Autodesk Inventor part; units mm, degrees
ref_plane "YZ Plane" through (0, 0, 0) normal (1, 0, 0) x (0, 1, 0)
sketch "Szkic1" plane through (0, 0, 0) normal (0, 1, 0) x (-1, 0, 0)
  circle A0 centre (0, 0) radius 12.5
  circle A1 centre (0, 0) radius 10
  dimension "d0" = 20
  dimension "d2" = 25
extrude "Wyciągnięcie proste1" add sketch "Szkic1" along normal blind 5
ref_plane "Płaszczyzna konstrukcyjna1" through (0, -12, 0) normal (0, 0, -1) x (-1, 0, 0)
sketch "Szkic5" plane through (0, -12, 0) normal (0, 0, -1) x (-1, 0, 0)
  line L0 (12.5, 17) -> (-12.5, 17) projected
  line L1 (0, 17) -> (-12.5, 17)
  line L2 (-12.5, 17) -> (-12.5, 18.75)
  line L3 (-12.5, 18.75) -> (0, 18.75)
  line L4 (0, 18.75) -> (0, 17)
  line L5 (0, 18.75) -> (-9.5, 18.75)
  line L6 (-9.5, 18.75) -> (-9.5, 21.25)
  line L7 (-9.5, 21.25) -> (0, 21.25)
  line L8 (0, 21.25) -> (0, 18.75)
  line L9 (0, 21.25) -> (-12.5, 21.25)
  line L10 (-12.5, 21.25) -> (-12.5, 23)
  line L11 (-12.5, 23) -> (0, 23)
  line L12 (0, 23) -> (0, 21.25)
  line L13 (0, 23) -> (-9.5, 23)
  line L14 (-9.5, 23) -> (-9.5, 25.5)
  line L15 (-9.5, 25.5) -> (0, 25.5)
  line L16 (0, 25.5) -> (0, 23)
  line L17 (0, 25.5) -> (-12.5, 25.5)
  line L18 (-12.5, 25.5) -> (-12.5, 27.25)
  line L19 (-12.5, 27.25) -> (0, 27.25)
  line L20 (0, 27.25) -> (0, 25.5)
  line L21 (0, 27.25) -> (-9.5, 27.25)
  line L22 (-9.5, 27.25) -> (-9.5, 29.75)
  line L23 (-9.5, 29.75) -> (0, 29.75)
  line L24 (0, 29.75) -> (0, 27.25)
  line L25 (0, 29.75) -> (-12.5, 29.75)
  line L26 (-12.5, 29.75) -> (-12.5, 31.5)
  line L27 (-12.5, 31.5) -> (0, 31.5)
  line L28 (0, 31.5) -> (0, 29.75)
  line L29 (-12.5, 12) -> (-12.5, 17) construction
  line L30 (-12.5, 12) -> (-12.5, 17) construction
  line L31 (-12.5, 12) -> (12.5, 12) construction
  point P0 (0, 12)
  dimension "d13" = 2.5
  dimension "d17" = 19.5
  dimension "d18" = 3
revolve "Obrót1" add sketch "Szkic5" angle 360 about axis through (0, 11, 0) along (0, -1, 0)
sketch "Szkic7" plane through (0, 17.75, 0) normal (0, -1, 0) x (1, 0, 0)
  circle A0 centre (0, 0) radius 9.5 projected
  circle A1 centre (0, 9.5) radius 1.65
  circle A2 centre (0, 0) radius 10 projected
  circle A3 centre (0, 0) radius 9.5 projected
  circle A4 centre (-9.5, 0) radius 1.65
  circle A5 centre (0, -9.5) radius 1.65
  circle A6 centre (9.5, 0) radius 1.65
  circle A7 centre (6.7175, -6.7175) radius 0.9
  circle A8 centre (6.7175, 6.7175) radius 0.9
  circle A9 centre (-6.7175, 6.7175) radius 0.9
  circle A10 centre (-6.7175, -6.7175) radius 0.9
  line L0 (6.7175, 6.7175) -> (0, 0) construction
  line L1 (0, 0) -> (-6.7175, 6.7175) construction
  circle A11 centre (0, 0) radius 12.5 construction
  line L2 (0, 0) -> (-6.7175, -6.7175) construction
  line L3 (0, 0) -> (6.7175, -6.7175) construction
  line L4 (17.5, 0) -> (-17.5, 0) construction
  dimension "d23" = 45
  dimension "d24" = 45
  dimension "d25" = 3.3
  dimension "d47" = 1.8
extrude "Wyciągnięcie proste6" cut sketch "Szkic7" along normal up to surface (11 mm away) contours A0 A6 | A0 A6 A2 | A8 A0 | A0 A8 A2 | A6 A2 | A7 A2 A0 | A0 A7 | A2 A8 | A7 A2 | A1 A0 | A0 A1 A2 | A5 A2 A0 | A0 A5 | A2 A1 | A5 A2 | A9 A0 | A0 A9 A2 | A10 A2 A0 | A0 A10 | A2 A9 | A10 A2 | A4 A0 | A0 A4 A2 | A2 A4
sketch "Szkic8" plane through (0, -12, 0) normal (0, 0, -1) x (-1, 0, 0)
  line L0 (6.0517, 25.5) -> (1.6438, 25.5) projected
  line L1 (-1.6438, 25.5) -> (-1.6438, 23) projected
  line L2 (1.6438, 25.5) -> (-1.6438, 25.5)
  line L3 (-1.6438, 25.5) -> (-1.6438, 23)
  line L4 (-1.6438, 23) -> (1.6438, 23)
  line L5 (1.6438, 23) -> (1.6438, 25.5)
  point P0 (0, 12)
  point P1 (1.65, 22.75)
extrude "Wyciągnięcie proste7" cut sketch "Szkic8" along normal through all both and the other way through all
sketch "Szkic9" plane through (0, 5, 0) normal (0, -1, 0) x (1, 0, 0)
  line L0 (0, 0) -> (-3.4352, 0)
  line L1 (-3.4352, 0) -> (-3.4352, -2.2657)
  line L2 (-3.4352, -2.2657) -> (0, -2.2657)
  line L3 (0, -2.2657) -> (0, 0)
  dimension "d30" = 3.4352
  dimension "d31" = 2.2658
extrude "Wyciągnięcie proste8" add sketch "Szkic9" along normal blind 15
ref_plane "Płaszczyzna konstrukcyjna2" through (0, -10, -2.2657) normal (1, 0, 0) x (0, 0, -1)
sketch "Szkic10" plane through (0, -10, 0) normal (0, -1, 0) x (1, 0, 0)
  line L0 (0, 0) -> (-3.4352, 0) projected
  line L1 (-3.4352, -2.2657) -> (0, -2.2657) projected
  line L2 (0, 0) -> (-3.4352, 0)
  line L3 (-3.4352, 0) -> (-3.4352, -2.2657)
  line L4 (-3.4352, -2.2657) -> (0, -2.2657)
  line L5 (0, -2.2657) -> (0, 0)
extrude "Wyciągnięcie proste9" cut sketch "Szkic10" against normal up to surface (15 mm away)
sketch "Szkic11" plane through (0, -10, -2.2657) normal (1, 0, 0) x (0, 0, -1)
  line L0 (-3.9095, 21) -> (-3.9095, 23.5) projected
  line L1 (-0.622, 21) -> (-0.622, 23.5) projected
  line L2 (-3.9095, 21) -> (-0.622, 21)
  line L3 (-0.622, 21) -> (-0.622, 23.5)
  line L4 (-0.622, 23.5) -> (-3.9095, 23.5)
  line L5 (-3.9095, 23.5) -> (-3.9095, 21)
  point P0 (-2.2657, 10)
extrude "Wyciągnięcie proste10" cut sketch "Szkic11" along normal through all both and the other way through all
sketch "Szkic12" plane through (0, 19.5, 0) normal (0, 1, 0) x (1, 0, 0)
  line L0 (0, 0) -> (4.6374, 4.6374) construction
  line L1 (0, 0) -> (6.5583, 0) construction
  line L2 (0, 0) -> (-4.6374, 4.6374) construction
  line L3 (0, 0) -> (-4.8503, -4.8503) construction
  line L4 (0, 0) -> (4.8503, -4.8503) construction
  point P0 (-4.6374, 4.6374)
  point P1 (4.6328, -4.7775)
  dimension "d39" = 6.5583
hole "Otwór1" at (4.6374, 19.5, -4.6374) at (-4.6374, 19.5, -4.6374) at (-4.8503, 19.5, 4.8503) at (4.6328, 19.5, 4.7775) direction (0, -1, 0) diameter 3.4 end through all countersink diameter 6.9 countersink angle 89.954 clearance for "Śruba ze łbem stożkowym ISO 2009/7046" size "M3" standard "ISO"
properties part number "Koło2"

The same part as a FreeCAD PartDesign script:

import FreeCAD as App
import Part
import Sketcher

V = App.Vector
Q = App.Units.Quantity


def add_polygon(sketch, points):
    """Adds a closed chain of lines whose ends are joined by coincident constraints."""
    first, n = sketch.GeometryCount, len(points)
    for a, b in zip(points, points[1:] + points[:1]):
        sketch.addGeometry(Part.LineSegment(App.Vector(*a, 0), App.Vector(*b, 0)), False)
    for i in range(n):
        sketch.addConstraint(Sketcher.Constraint("Coincident", first + i, 2, first + (i + 1) % n, 1))

doc = App.newDocument("Part")
params = doc.addObject("Spreadsheet::Sheet", "Params")
for row, (alias, value) in enumerate([
    ("sketch1_diameter", "25 mm"),
    ("sketch1_diameter2", "20 mm"),
    ("pad1_length", "5 mm"),
    ("sketch2_width", "3 mm"),
    ("sketch2_height", "2.5 mm"),
    ("sketch2_width2", "12.5 mm"),
    ("sketch2_height2", "14.5 mm"),
    ("revolution_angle", "360 deg"),
    ("sketch3_diameter", "3.3 mm"),
    ("sketch3_diameter2", "1.8 mm"),
    ("pocket1_length", "11 mm"),
    ("sketch4_height", "2.5 mm"),
    ("pad2_length", "15 mm"),
    ("pocket3_length", "15 mm"),
    ("sketch7_width", "2.5 mm"),
    ("sketch8_diameter", "3.4 mm"),
    ("hole_diameter", "3.4 mm"),
    ("hole_csink_diameter", "6.9 mm"),
], start=1):
    params.set(f"A{row}", alias)
    params.set(f"B{row}", "=" + value)
    params.setAlias(f"B{row}", alias)

body = doc.addObject("PartDesign::Body", "Body")

# Sketch on XZ plane
sketch1 = body.newObject("Sketcher::SketchObject", "Sketch")
sketch1.AttachmentSupport = (doc.getObject("XZ_Plane"), [""])
sketch1.MapMode = "FlatFace"
sketch1.addGeometry([
    Part.Circle(V(0, 0, 0), V(0, 0, 1), 12),
    Part.Circle(V(0, 0, 0), V(0, 0, 1), 10),
], False)
sketch1.addConstraint([
    Sketcher.Constraint("Coincident", 0, 3, -1, 1),
    Sketcher.Constraint("Coincident", 1, 3, -1, 1),
    Sketcher.Constraint("Diameter", 0, Q("25 mm")),
    Sketcher.Constraint("Diameter", 1, Q("20 mm")),
])
sketch1.setExpression("Constraints[2]", "Params.sketch1_diameter")
sketch1.setExpression("Constraints[3]", "Params.sketch1_diameter2")
pad1 = body.newObject("PartDesign::Pad", "Pad")
pad1.Profile = sketch1
pad1.setExpression("Length", "Params.pad1_length")
pad1.Reversed = True

# Sketch on XY plane
sketch2 = body.newObject("Sketcher::SketchObject", "Sketch001")
sketch2.AttachmentSupport = (doc.getObject("XY_Plane"), [""])
sketch2.MapMode = "FlatFace"
add_polygon(sketch2, [(12.5, 5), (0, 5), (0, 19.5), (12.5, 19.5), (12.5, 17.8), (9.5, 17.8), (9.5, 15.2), (12.5, 15.2), (12.5, 13.5), (9.5, 13.5), (9.5, 11), (12.5, 11), (12.5, 9.2), (9.5, 9.2), (9.5, 6.8), (12.5, 6.8)])  # lines 0-15
sketch2.addConstraint([
    Sketcher.Constraint("Horizontal", 0),
    Sketcher.Constraint("Vertical", 1),
    Sketcher.Constraint("Horizontal", 2),
    Sketcher.Constraint("Vertical", 3),
    Sketcher.Constraint("Horizontal", 4),
    Sketcher.Constraint("Vertical", 5),
    Sketcher.Constraint("Horizontal", 6),
    Sketcher.Constraint("Vertical", 7),
    Sketcher.Constraint("Horizontal", 8),
    Sketcher.Constraint("Vertical", 9),
    Sketcher.Constraint("Horizontal", 10),
    Sketcher.Constraint("Vertical", 11),
    Sketcher.Constraint("Horizontal", 12),
    Sketcher.Constraint("Vertical", 13),
    Sketcher.Constraint("Horizontal", 14),
    Sketcher.Constraint("Vertical", 15),
    Sketcher.Constraint("PointOnObject", 0, 2, -2),
    Sketcher.Constraint("Vertical", 3, 2, 6, 2),
    Sketcher.Constraint("Vertical", 5, 2, 8, 2),
    Sketcher.Constraint("Vertical", 7, 2, 10, 2),
    Sketcher.Constraint("Vertical", 9, 2, 12, 2),
    Sketcher.Constraint("Vertical", 11, 2, 14, 2),
    Sketcher.Constraint("Equal", 3, 7),
    Sketcher.Constraint("Equal", 5, 9),
    Sketcher.Constraint("Equal", 7, 11),
    Sketcher.Constraint("Equal", 9, 13),
    Sketcher.Constraint("Equal", 11, 15),
    Sketcher.Constraint("DistanceX", 4, 2, 4, 1, Q("3 mm")),
    Sketcher.Constraint("DistanceY", 5, 2, 5, 1, Q("2.5 mm")),
    Sketcher.Constraint("DistanceY", -1, 1, 1, 2, Q("19.5 mm")),
    Sketcher.Constraint("DistanceX", 0, 2, 0, 1, Q("12.5 mm")),
    Sketcher.Constraint("DistanceY", 1, 1, 1, 2, Q("14.5 mm")),
])
sketch2.setExpression("Constraints[43]", "Params.sketch2_width")
sketch2.setExpression("Constraints[44]", "Params.sketch2_height")
sketch2.setExpression("Constraints[46]", "Params.sketch2_width2")
sketch2.setExpression("Constraints[47]", "Params.sketch2_height2")
revolution = body.newObject("PartDesign::Revolution", "Revolution")
revolution.Profile = sketch2
revolution.ReferenceAxis = (sketch2, ["V_Axis"])
revolution.setExpression("Angle", "Params.revolution_angle")

# Sketch on XZ plane
sketch3 = body.newObject("Sketcher::SketchObject", "Sketch002")
sketch3.AttachmentSupport = (doc.getObject("XZ_Plane"), [""])
sketch3.MapMode = "FlatFace"
sketch3.AttachmentOffset = App.Placement(V(0, 0, -17.75), App.Rotation())
sketch3.addGeometry([
    Part.Circle(V(9.5, 0, 0), V(0, 0, 1), 1.6),  # 0
    Part.Circle(V(6.7, 6.7, 0), V(0, 0, 1), 0.9),  # 1
    Part.Circle(V(6.7, -6.7, 0), V(0, 0, 1), 0.9),  # 2
    Part.Circle(V(0, 9.5, 0), V(0, 0, 1), 1.6),  # 3
    Part.Circle(V(0, -9.5, 0), V(0, 0, 1), 1.6),  # 4
    Part.Circle(V(-6.7, 6.7, 0), V(0, 0, 1), 0.9),  # 5
    Part.Circle(V(-6.7, -6.7, 0), V(0, 0, 1), 0.9),  # 6
    Part.Circle(V(-9.5, 0, 0), V(0, 0, 1), 1.6),  # 7
], False)
sketch3.addConstraint([
    Sketcher.Constraint("Equal", 1, 2),
    Sketcher.Constraint("Equal", 0, 3),
    Sketcher.Constraint("Equal", 3, 4),
    Sketcher.Constraint("Equal", 2, 5),
    Sketcher.Constraint("Equal", 5, 6),
    Sketcher.Constraint("Equal", 4, 7),
    Sketcher.Constraint("Symmetric", 3, 3, 4, 3, -1, 1),
    Sketcher.Constraint("Symmetric", 2, 3, 5, 3, -1, 1),
    Sketcher.Constraint("Symmetric", 1, 3, 6, 3, -1, 1),
    Sketcher.Constraint("Symmetric", 0, 3, 7, 3, -1, 1),
    Sketcher.Constraint("Symmetric", 1, 3, 5, 3, -2),
    Sketcher.Constraint("PointOnObject", 0, 3, -1),
    Sketcher.Constraint("PointOnObject", 3, 3, -2),
    Sketcher.Constraint("Diameter", 0, Q("3.3 mm")),
    Sketcher.Constraint("Diameter", 1, Q("1.8 mm")),
    Sketcher.Constraint("DistanceY", 4, 3, 3, 3, Q("19 mm")),
    Sketcher.Constraint("DistanceX", -1, 1, 0, 3, Q("9.5 mm")),
    Sketcher.Constraint("DistanceY", 2, 3, 1, 3, Q("13.435 mm")),
    Sketcher.Constraint("DistanceX", 5, 3, 1, 3, Q("13.435 mm")),
])
sketch3.setExpression("Constraints[13]", "Params.sketch3_diameter")
sketch3.setExpression("Constraints[14]", "Params.sketch3_diameter2")
pocket1 = body.newObject("PartDesign::Pocket", "Pocket")
pocket1.Profile = sketch3
pocket1.setExpression("Length", "Params.pocket1_length")
pocket1.Reversed = True

# Sketch on XY plane
sketch4 = body.newObject("Sketcher::SketchObject", "Sketch003")
sketch4.AttachmentSupport = (doc.getObject("XY_Plane"), [""])
sketch4.MapMode = "FlatFace"
add_polygon(sketch4, [(-1.6, 13.5), (1.6, 13.5), (1.6, 11), (-1.6, 11)])  # lines 0-3
sketch4.addConstraint([
    Sketcher.Constraint("Horizontal", 0),
    Sketcher.Constraint("Vertical", 1),
    Sketcher.Constraint("Horizontal", 2),
    Sketcher.Constraint("Vertical", 3),
    Sketcher.Constraint("DistanceY", 1, 2, 1, 1, Q("2.5 mm")),
    Sketcher.Constraint("DistanceY", -1, 1, 1, 2, Q("11 mm")),
    Sketcher.Constraint("DistanceX", 0, 1, 0, 2, Q("3.2876 mm")),
    Sketcher.Constraint("DistanceX", -1, 1, 0, 2, Q("1.6438 mm")),
])
sketch4.setExpression("Constraints[8]", "Params.sketch4_height")
pocket2 = body.newObject("PartDesign::Pocket", "Pocket001")
pocket2.Profile = sketch4
pocket2.Type = "ThroughAll"
pocket2.Midplane = True

# Sketch on XZ plane
sketch5 = body.newObject("Sketcher::SketchObject", "Sketch004")
sketch5.AttachmentSupport = (doc.getObject("XZ_Plane"), [""])
sketch5.MapMode = "FlatFace"
sketch5.AttachmentOffset = App.Placement(V(0, 0, -5), App.Rotation())
add_polygon(sketch5, [(0, -2.3), (0, 0), (-3.4, 0), (-3.4, -2.3)])  # lines 0-3
sketch5.addConstraint([
    Sketcher.Constraint("Vertical", 0),
    Sketcher.Constraint("Horizontal", 1),
    Sketcher.Constraint("Vertical", 2),
    Sketcher.Constraint("Horizontal", 3),
    Sketcher.Constraint("Coincident", 0, 2, -1, 1),
    Sketcher.Constraint("DistanceX", 1, 2, 1, 1, Q("3.4352 mm")),
    Sketcher.Constraint("DistanceY", 0, 1, 0, 2, Q("2.2657 mm")),
])
pad2 = body.newObject("PartDesign::Pad", "Pad001")
pad2.Profile = sketch5
pad2.setExpression("Length", "Params.pad2_length")

# Sketch on XZ plane
sketch6 = body.newObject("Sketcher::SketchObject", "Sketch005")
sketch6.AttachmentSupport = (doc.getObject("XZ_Plane"), [""])
sketch6.MapMode = "FlatFace"
sketch6.AttachmentOffset = App.Placement(V(0, 0, 10), App.Rotation())
add_polygon(sketch6, [(0, -2.3), (0, 0), (-3.4, 0), (-3.4, -2.3)])  # lines 0-3
sketch6.addConstraint([
    Sketcher.Constraint("Vertical", 0),
    Sketcher.Constraint("Horizontal", 1),
    Sketcher.Constraint("Vertical", 2),
    Sketcher.Constraint("Horizontal", 3),
    Sketcher.Constraint("Coincident", 0, 2, -1, 1),
    Sketcher.Constraint("DistanceX", 1, 2, 1, 1, Q("3.4352 mm")),
    Sketcher.Constraint("DistanceY", 0, 1, 0, 2, Q("2.2657 mm")),
])
pocket3 = body.newObject("PartDesign::Pocket", "Pocket002")
pocket3.Profile = sketch6
pocket3.setExpression("Length", "Params.pocket3_length")

# Sketch on YZ plane
sketch7 = body.newObject("Sketcher::SketchObject", "Sketch006")
sketch7.AttachmentSupport = (doc.getObject("YZ_Plane"), [""])
sketch7.MapMode = "FlatFace"
add_polygon(sketch7, [(13.5, 1.6), (11, 1.6), (11, -1.6), (13.5, -1.6)])  # lines 0-3
sketch7.addConstraint([
    Sketcher.Constraint("Horizontal", 0),
    Sketcher.Constraint("Vertical", 1),
    Sketcher.Constraint("Horizontal", 2),
    Sketcher.Constraint("Vertical", 3),
    Sketcher.Constraint("DistanceX", 0, 2, 0, 1, Q("2.5 mm")),
    Sketcher.Constraint("DistanceX", -1, 1, 0, 2, Q("11 mm")),
    Sketcher.Constraint("DistanceY", 1, 2, 1, 1, Q("3.2875 mm")),
    Sketcher.Constraint("DistanceY", -1, 1, 0, 2, Q("1.6438 mm")),
])
sketch7.setExpression("Constraints[8]", "Params.sketch7_width")
pocket4 = body.newObject("PartDesign::Pocket", "Pocket003")
pocket4.Profile = sketch7
pocket4.Type = "ThroughAll"
pocket4.Midplane = True

# Sketch on XZ plane
sketch8 = body.newObject("Sketcher::SketchObject", "Sketch007")
sketch8.AttachmentSupport = (doc.getObject("XZ_Plane"), [""])
sketch8.MapMode = "FlatFace"
sketch8.AttachmentOffset = App.Placement(V(0, 0, -19.5), App.Rotation())
sketch8.addGeometry([
    Part.Circle(V(4.6, -4.6, 0), V(0, 0, 1), 1.7),
    Part.Circle(V(-4.6, -4.6, 0), V(0, 0, 1), 1.7),
    Part.Circle(V(-4.9, 4.9, 0), V(0, 0, 1), 1.7),
    Part.Circle(V(4.6, 4.8, 0), V(0, 0, 1), 1.7),
], False)
sketch8.addConstraint([
    Sketcher.Constraint("Equal", 0, 1),
    Sketcher.Constraint("Equal", 1, 2),
    Sketcher.Constraint("Equal", 2, 3),
    Sketcher.Constraint("Symmetric", 0, 3, 1, 3, -2),
    Sketcher.Constraint("Diameter", 0, Q("3.4 mm")),
    Sketcher.Constraint("DistanceX", 2, 3, 1, 3, Q("0.213 mm")),
    Sketcher.Constraint("DistanceY", 0, 3, 3, 3, Q("9.415 mm")),
    Sketcher.Constraint("DistanceX", 2, 3, 3, 3, Q("9.483 mm")),
    Sketcher.Constraint("DistanceX", -1, 1, 0, 3, Q("4.6374 mm")),
    Sketcher.Constraint("DistanceY", 0, 3, -1, 1, Q("4.6374 mm")),
    Sketcher.Constraint("DistanceY", -1, 1, 2, 3, Q("4.8503 mm")),
])
sketch8.setExpression("Constraints[4]", "Params.sketch8_diameter")
doc.recompute()
hole = body.newObject("PartDesign::Hole", "Hole")
hole.Profile = sketch8
hole.ThreadType = "None"
hole.setExpression("Diameter", "Params.hole_diameter")
hole.DepthType = "ThroughAll"
hole.HoleCutType = "Countersink"
hole.setExpression("HoleCutDiameter", "Params.hole_csink_diameter")
hole.HoleCutCountersinkAngle = 89.954
hole.Reversed = True

doc.recompute()
